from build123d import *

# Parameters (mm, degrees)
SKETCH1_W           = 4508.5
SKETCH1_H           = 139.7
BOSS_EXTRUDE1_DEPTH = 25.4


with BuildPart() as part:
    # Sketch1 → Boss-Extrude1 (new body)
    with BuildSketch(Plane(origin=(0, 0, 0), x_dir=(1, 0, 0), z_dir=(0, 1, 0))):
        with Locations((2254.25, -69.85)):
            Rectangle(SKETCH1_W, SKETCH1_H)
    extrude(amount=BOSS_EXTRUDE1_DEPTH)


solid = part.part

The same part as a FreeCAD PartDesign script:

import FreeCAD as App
import Part
import Sketcher
Q = App.Units.Quantity

doc = App.newDocument("Part")
body = doc.addObject("PartDesign::Body", "Body")

sketch1 = body.newObject("Sketcher::SketchObject", "Sketch")
sketch1.AttachmentSupport = (doc.getObject("XZ_Plane"), [""])
sketch1.MapMode = "FlatFace"
sketch1.addGeometry(Part.LineSegment(App.Vector(0, 0, 0), App.Vector(0, 139.7, 0)), False)
sketch1.addGeometry(Part.LineSegment(App.Vector(0, 139.7, 0), App.Vector(4508.5, 139.7, 0)), False)
sketch1.addGeometry(Part.LineSegment(App.Vector(4508.5, 139.7, 0), App.Vector(4508.5, 0, 0)), False)
sketch1.addGeometry(Part.LineSegment(App.Vector(4508.5, 0, 0), App.Vector(0, 0, 0)), False)
sketch1.addConstraint(Sketcher.Constraint("Coincident", 0, 2, 1, 1))
sketch1.addConstraint(Sketcher.Constraint("Coincident", 1, 2, 2, 1))
sketch1.addConstraint(Sketcher.Constraint("Coincident", 2, 2, 3, 1))
sketch1.addConstraint(Sketcher.Constraint("Coincident", 3, 2, 0, 1))
sketch1.addConstraint(Sketcher.Constraint("Vertical", 0))
sketch1.addConstraint(Sketcher.Constraint("Horizontal", 1))
sketch1.addConstraint(Sketcher.Constraint("Vertical", 2))
sketch1.addConstraint(Sketcher.Constraint("Horizontal", 3))
sketch1.addConstraint(Sketcher.Constraint("Coincident", 3, 2, -1, 1))
sketch1.addConstraint(Sketcher.Constraint("DistanceX", 1, 1, 1, 2, Q("177.5 in")))
sketch1.addConstraint(Sketcher.Constraint("DistanceY", 0, 1, 0, 2, Q("5.5 in")))
pad1 = body.newObject("PartDesign::Pad", "Pad")
pad1.Profile = sketch1
pad1.Length = Q("1 in")
pad1.Reversed = True

doc.recompute()
